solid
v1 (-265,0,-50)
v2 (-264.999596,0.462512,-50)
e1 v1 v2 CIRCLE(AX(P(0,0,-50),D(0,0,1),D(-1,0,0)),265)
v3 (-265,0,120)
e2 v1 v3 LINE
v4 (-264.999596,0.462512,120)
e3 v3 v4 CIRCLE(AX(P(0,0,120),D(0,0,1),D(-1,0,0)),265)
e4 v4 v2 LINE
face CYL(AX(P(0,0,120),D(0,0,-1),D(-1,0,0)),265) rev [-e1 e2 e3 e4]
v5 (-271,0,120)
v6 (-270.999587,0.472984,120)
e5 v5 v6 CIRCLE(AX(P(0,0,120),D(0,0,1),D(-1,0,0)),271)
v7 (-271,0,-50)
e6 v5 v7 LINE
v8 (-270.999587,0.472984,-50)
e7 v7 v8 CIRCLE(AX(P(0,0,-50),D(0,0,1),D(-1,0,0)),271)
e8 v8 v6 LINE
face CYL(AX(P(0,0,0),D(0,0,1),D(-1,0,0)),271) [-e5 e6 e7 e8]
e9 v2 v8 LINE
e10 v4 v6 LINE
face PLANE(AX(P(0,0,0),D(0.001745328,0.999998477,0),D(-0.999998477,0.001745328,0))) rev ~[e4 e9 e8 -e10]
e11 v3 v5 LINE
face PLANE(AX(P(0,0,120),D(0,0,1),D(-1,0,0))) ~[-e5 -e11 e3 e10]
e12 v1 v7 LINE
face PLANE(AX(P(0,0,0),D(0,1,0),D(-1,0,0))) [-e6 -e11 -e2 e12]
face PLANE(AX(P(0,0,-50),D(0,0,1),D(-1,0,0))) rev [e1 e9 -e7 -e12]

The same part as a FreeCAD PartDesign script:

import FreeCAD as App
import Part
import Sketcher
Q = App.Units.Quantity

doc = App.newDocument("Part")
body = doc.addObject("PartDesign::Body", "Body")

sketch1 = body.newObject("Sketcher::SketchObject", "Sketch")
sketch1.AttachmentSupport = (doc.getObject("XZ_Plane"), [""])
sketch1.MapMode = "FlatFace"
sketch1.addGeometry([
    Part.LineSegment(App.Vector(-271, 120, 0), App.Vector(-265, 120, 0)),
    Part.LineSegment(App.Vector(-265, 120, 0), App.Vector(-265, -50, 0)),
    Part.LineSegment(App.Vector(-265, -50, 0), App.Vector(-271, -50, 0)),
    Part.LineSegment(App.Vector(-271, -50, 0), App.Vector(-271, 120, 0)),
], False)
sketch1.addConstraint([
    Sketcher.Constraint("Coincident", 0, 2, 1, 1),
    Sketcher.Constraint("Coincident", 1, 2, 2, 1),
    Sketcher.Constraint("Coincident", 2, 2, 3, 1),
    Sketcher.Constraint("Coincident", 3, 2, 0, 1),
    Sketcher.Constraint("Horizontal", 0),
    Sketcher.Constraint("Vertical", 1),
    Sketcher.Constraint("Horizontal", 2),
    Sketcher.Constraint("Vertical", 3),
    Sketcher.Constraint("DistanceX", 0, 1, 0, 2, Q("6 mm")),
    Sketcher.Constraint("DistanceY", -1, 1, 0, 2, Q("120 mm")),
    Sketcher.Constraint("DistanceY", 1, 2, -1, 1, Q("50 mm")),
    Sketcher.Constraint("DistanceX", 0, 2, -1, 1, Q("265 mm")),
])
revolution = body.newObject("PartDesign::Revolution", "Revolution")
revolution.Profile = sketch1
revolution.ReferenceAxis = (sketch1, ["V_Axis"])
revolution.Angle = 359.9

doc.recompute()
